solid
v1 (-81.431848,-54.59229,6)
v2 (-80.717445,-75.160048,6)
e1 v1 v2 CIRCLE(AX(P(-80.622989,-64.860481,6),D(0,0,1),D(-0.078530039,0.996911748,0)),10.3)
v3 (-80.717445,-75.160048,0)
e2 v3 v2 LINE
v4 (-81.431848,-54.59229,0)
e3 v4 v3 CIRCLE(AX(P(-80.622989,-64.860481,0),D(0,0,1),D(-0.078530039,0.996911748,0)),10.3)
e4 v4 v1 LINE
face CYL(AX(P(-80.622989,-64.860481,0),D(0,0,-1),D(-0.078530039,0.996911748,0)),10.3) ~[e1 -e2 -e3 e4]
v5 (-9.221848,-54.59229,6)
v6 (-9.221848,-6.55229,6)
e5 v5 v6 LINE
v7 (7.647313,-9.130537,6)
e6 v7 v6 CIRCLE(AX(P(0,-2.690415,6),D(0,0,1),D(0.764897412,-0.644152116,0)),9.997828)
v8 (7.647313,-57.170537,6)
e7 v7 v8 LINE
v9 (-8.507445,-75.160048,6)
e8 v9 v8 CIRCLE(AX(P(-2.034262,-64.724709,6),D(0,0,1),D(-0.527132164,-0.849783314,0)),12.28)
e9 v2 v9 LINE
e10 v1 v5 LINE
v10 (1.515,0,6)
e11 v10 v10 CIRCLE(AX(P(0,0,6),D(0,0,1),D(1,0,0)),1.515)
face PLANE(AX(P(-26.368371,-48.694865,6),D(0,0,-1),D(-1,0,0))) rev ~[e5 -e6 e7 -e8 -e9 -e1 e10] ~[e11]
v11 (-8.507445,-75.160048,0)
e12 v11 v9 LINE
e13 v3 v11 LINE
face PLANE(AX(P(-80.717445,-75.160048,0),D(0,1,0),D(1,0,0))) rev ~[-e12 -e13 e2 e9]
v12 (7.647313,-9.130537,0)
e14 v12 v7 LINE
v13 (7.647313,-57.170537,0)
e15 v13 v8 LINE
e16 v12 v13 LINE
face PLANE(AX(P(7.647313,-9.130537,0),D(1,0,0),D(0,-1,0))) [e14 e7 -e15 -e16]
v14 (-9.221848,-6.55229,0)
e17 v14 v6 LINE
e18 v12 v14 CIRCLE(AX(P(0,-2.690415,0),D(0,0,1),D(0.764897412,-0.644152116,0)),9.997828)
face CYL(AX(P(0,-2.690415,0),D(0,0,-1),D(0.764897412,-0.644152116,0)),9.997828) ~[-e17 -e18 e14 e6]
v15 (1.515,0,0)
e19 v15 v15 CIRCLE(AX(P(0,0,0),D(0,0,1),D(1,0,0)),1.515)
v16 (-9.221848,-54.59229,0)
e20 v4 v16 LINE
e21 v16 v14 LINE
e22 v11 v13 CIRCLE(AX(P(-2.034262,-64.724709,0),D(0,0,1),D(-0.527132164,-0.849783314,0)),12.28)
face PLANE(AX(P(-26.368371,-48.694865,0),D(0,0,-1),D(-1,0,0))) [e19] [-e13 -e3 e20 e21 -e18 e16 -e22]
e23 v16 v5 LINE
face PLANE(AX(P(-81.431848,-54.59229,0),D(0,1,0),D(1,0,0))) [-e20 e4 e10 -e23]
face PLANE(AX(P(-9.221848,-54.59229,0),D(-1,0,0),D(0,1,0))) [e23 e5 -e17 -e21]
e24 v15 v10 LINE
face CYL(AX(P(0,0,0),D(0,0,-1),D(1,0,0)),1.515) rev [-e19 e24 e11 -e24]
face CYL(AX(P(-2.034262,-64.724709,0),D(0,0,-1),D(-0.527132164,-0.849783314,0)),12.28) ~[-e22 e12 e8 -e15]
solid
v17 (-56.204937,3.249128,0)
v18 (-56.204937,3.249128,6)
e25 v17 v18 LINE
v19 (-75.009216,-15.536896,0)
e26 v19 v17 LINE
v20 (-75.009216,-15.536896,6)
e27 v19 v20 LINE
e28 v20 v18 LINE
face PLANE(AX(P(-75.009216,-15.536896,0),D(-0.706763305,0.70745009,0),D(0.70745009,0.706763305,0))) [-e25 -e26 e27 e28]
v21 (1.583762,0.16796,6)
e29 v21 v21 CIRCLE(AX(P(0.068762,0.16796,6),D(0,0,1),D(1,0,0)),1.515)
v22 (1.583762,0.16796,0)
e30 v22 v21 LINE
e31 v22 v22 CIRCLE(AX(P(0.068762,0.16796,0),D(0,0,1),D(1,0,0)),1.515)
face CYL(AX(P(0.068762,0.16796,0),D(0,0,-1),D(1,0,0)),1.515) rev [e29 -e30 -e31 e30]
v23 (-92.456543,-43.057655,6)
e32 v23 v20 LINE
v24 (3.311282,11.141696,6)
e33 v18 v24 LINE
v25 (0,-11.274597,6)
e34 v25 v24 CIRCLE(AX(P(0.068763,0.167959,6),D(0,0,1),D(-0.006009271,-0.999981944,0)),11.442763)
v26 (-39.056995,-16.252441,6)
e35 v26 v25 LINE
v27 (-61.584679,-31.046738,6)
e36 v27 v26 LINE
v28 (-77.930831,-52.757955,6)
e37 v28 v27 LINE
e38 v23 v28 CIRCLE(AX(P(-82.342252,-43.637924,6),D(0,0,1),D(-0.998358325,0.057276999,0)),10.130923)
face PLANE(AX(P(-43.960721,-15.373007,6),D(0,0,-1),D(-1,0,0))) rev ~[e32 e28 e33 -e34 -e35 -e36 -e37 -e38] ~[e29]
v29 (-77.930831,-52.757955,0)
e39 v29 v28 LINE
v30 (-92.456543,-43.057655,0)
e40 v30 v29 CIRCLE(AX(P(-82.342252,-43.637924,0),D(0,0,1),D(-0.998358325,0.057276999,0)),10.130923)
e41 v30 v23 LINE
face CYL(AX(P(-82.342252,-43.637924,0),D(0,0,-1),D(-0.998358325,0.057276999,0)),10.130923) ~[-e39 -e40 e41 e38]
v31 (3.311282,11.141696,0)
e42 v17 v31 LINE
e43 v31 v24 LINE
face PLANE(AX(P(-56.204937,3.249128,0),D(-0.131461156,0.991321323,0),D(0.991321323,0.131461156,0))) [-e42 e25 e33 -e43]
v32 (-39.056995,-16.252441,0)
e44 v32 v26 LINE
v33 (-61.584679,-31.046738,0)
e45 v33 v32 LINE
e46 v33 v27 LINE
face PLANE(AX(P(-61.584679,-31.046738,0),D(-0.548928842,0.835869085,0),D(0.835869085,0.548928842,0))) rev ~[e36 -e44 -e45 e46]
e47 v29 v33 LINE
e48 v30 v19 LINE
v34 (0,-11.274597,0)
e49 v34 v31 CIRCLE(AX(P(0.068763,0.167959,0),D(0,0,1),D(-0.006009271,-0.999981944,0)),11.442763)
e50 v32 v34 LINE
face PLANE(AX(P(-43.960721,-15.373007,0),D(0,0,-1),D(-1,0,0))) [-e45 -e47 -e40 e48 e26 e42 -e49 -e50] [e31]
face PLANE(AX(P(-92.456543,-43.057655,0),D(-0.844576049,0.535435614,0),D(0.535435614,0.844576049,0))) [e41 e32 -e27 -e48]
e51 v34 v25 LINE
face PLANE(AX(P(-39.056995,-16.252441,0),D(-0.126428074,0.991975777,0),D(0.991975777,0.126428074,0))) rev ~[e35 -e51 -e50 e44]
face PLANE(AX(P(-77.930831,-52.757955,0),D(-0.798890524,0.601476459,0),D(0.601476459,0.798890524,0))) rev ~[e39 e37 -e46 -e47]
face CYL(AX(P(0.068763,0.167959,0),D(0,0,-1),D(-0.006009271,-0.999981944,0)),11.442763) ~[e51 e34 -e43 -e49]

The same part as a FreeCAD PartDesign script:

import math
import FreeCAD as App
import Part
import Sketcher
Q = App.Units.Quantity

doc = App.newDocument("Part")
body = doc.addObject("PartDesign::Body", "Body")

# Sketch on XY plane
sketch1 = body.newObject("Sketcher::SketchObject", "Sketch")
sketch1.AttachmentSupport = (doc.getObject("XY_Plane"), [""])
sketch1.MapMode = "FlatFace"
sketch1.addGeometry([
    Part.LineSegment(App.Vector(-9.221848, -54.59229, 0), App.Vector(-81.431848, -54.59229, 0)),  # 0
    Part.ArcOfCircle(Part.Circle(App.Vector(-80.622989, -64.860481, 0), App.Vector(0, 0, 1), 10.3), math.radians(94.504077), math.radians(269.47456)),  # 1
    Part.LineSegment(App.Vector(-80.717445, -75.160048, 0), App.Vector(-8.507445, -75.160048, 0)),  # 2
    Part.ArcOfCircle(Part.Circle(App.Vector(-2.034262, -64.724709, 0), App.Vector(0, 0, 1), 12.28), math.radians(-121.811891), math.radians(37.963588)),  # 3
    Part.LineSegment(App.Vector(7.647313, -57.170537, 0), App.Vector(7.647313, -9.130537, 0)),  # 4
    Part.ArcOfCircle(Part.Circle(App.Vector(0, -2.690415, 0), App.Vector(0, 0, 1), 9.997828), math.radians(-40.102134), math.radians(202.722693)),  # 5
    Part.LineSegment(App.Vector(-9.221848, -6.55229, 0), App.Vector(-9.221848, -54.59229, 0)),  # 6
    Part.Circle(App.Vector(0, 0, 0), App.Vector(0, 0, 1), 1.515),  # 7
], False)
sketch1.addConstraint([
    Sketcher.Constraint("Coincident", 0, 2, 1, 1),
    Sketcher.Constraint("Coincident", 1, 2, 2, 1),
    Sketcher.Constraint("Coincident", 2, 2, 3, 1),
    Sketcher.Constraint("Coincident", 3, 2, 4, 1),
    Sketcher.Constraint("Coincident", 4, 2, 5, 1),
    Sketcher.Constraint("Coincident", 5, 2, 6, 1),
    Sketcher.Constraint("Coincident", 6, 2, 0, 1),
    Sketcher.Constraint("Horizontal", 0),
    Sketcher.Constraint("Horizontal", 2),
    Sketcher.Constraint("Vertical", 4),
    Sketcher.Constraint("Vertical", 6),
    Sketcher.Constraint("Coincident", 7, 3, -1, 1),
    Sketcher.Constraint("PointOnObject", 5, 3, -2),
    Sketcher.Constraint("Equal", 0, 2),
    Sketcher.Constraint("Equal", 4, 6),
    Sketcher.Constraint("Radius", 1, Q("10.3 mm")),
    Sketcher.Constraint("Diameter", 7, Q("3.03 mm")),
    Sketcher.Constraint("Radius", 3, Q("12.28 mm")),
    Sketcher.Constraint("DistanceX", 0, 2, 0, 1, Q("72.21 mm")),
    Sketcher.Constraint("DistanceY", 4, 1, 4, 2, Q("48.04 mm")),
    Sketcher.Constraint("Radius", 5, Q("9.997828 mm")),
    Sketcher.Constraint("DistanceX", 1, 3, 3, 2, Q("88.270302 mm")),
    Sketcher.Constraint("DistanceX", 1, 3, -1, 1, Q("80.622989 mm")),
    Sketcher.Constraint("DistanceY", 1, 3, -1, 1, Q("64.860481 mm")),
    Sketcher.Constraint("DistanceX", 3, 3, -1, 1, Q("2.034262 mm")),
    Sketcher.Constraint("DistanceY", 3, 3, -1, 1, Q("64.724709 mm")),
])
pad1 = body.newObject("PartDesign::Pad", "Pad")
pad1.Profile = sketch1
pad1.Length = 6
body2 = doc.addObject("PartDesign::Body", "Body001")

# Sketch on XY plane
sketch2 = body2.newObject("Sketcher::SketchObject", "Sketch001")
sketch2.AttachmentSupport = (doc.getObject("XY_Plane001"), [""])
sketch2.MapMode = "FlatFace"
sketch2.addGeometry([
    Part.LineSegment(App.Vector(-75.009216, -15.536896, 0), App.Vector(-92.456543, -43.057655, 0)),  # 0
    Part.ArcOfCircle(Part.Circle(App.Vector(-82.342252, -43.637924, 0), App.Vector(0, 0, 1), 10.130923), math.radians(176.716473), math.radians(295.813368)),  # 1
    Part.LineSegment(App.Vector(-77.930831, -52.757955, 0), App.Vector(-61.584679, -31.046738, 0)),  # 2
    Part.LineSegment(App.Vector(-61.584679, -31.046738, 0), App.Vector(-39.056995, -16.252441, 0)),  # 3
    Part.LineSegment(App.Vector(-39.056995, -16.252441, 0), App.Vector(0, -11.274597, 0)),  # 4
    Part.ArcOfCircle(Part.Circle(App.Vector(0.068763, 0.167959, 0), App.Vector(0, 0, 1), 11.442763), math.radians(-90.344308), math.radians(73.538646)),  # 5
    Part.LineSegment(App.Vector(3.311282, 11.141696, 0), App.Vector(-56.204937, 3.249128, 0)),  # 6
    Part.LineSegment(App.Vector(-56.204937, 3.249128, 0), App.Vector(-75.009216, -15.536896, 0)),  # 7
    Part.Circle(App.Vector(0.068762, 0.16796, 0), App.Vector(0, 0, 1), 1.515),  # 8
], False)
sketch2.addConstraint([
    Sketcher.Constraint("Coincident", 0, 2, 1, 1),
    Sketcher.Constraint("Coincident", 1, 2, 2, 1),
    Sketcher.Constraint("Coincident", 2, 2, 3, 1),
    Sketcher.Constraint("Coincident", 3, 2, 4, 1),
    Sketcher.Constraint("Coincident", 4, 2, 5, 1),
    Sketcher.Constraint("Coincident", 5, 2, 6, 1),
    Sketcher.Constraint("Coincident", 6, 2, 7, 1),
    Sketcher.Constraint("Coincident", 7, 2, 0, 1),
    Sketcher.Constraint("Coincident", 8, 3, 5, 3),
    Sketcher.Constraint("PointOnObject", 4, 2, -2),
    Sketcher.Constraint("Diameter", 8, Q("3.03 mm")),
    Sketcher.Constraint("Radius", 1, Q("10.130923 mm")),
    Sketcher.Constraint("Radius", 5, Q("11.442763 mm")),
    Sketcher.Constraint("DistanceY", 1, 2, 0, 2, Q("9.7003 mm")),
    Sketcher.Constraint("DistanceY", 2, 2, 8, 3, Q("31.214698 mm")),
    Sketcher.Constraint("DistanceY", 3, 2, 8, 3, Q("16.420401 mm")),
    Sketcher.Constraint("DistanceX", 6, 2, 8, 3, Q("56.273699 mm")),
    Sketcher.Constraint("Distance", 2, Q("27.176711 mm")),
    Sketcher.Constraint("Distance", 3, Q("26.951211 mm")),
    Sketcher.Constraint("Distance", 7, Q("26.580361 mm")),
    Sketcher.Constraint("DistanceX", 1, 3, -1, 1, Q("82.342252 mm")),
    Sketcher.Constraint("DistanceY", -1, 1, 5, 3, Q("0.167959 mm")),
    Sketcher.Constraint("DistanceX", 1, 2, -1, 1, Q("77.930831 mm")),
    Sketcher.Constraint("DistanceX", 2, 2, -1, 1, Q("61.584679 mm")),
    Sketcher.Constraint("DistanceX", 2, 2, 8, 3, Q("61.653441 mm")),
    Sketcher.Constraint("DistanceX", 8, 3, 5, 2, Q("3.24252 mm")),
    Sketcher.Constraint("DistanceY", 3, 2, 6, 2, Q("19.501569 mm")),
    Sketcher.Constraint("DistanceX", 7, 2, 6, 2, Q("18.804279 mm")),
])
pad2 = body2.newObject("PartDesign::Pad", "Pad001")
pad2.Profile = sketch2
pad2.Length = 6

doc.recompute()
